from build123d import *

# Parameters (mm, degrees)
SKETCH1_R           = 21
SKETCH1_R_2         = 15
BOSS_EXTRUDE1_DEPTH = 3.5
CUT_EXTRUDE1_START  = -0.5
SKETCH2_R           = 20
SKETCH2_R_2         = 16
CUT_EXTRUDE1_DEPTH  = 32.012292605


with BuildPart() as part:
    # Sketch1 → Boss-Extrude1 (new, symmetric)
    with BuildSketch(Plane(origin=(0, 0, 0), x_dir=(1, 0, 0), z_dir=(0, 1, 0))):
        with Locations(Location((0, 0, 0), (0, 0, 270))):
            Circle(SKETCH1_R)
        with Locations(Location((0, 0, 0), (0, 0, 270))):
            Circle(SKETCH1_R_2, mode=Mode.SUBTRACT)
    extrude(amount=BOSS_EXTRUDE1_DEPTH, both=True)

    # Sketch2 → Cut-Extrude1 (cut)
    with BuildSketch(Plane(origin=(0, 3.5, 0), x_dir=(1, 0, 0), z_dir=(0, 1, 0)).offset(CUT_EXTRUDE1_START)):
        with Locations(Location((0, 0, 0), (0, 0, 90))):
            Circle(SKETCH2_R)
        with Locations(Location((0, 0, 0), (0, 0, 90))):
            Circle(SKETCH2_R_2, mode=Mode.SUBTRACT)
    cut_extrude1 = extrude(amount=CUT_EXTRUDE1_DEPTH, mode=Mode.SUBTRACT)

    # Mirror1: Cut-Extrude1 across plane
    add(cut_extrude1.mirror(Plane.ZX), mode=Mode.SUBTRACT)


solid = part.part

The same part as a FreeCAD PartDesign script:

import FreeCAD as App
import Part
import Sketcher

doc = App.newDocument("Part")
params = doc.addObject("Spreadsheet::Sheet", "Params")
for row, (alias, value) in enumerate([
    ("sketch1_diameter", "42 mm"),
    ("sketch1_diameter2", "30 mm"),
    ("pad1_length", "7 mm"),
    ("sketch2_diameter", "40 mm"),
    ("sketch2_diameter2", "32 mm"),
    ("pocket1_length", "32.012293 mm"),
], start=1):
    params.set(f"A{row}", alias)
    params.set(f"B{row}", "=" + value)
    params.setAlias(f"B{row}", alias)

body = doc.addObject("PartDesign::Body", "Body")

# Sketch on XZ plane
sketch1 = body.newObject("Sketcher::SketchObject", "Sketch")
sketch1.AttachmentSupport = (doc.getObject("XZ_Plane"), [""])
sketch1.MapMode = "FlatFace"
sketch1.addGeometry([
    Part.Circle(App.Vector(0, 0, 0), App.Vector(0, 0, 1), 21),
    Part.Circle(App.Vector(0, 0, 0), App.Vector(0, 0, 1), 15),
], False)
sketch1.addConstraint([
    Sketcher.Constraint("Coincident", 0, 3, -1, 1),
    Sketcher.Constraint("Coincident", 1, 3, -1, 1),
    Sketcher.Constraint("Diameter", 0, 42.0),
    Sketcher.Constraint("Diameter", 1, 30.0),
])
sketch1.setExpression("Constraints[2]", "Params.sketch1_diameter")
sketch1.setExpression("Constraints[3]", "Params.sketch1_diameter2")
pad1 = body.newObject("PartDesign::Pad", "Pad")
pad1.Profile = sketch1
pad1.setExpression("Length", "Params.pad1_length")
pad1.Midplane = True

# Sketch on XZ plane
sketch2 = body.newObject("Sketcher::SketchObject", "Sketch001")
sketch2.AttachmentSupport = (doc.getObject("XZ_Plane"), [""])
sketch2.MapMode = "FlatFace"
sketch2.AttachmentOffset = App.Placement(App.Vector(0, 0, -3), App.Rotation())
sketch2.addGeometry([
    Part.Circle(App.Vector(0, 0, 0), App.Vector(0, 0, 1), 20),
    Part.Circle(App.Vector(0, 0, 0), App.Vector(0, 0, 1), 16),
], False)
sketch2.addConstraint([
    Sketcher.Constraint("Coincident", 0, 3, -1, 1),
    Sketcher.Constraint("Coincident", 1, 3, -1, 1),
    Sketcher.Constraint("Diameter", 0, 40.0),
    Sketcher.Constraint("Diameter", 1, 32.0),
])
sketch2.setExpression("Constraints[2]", "Params.sketch2_diameter")
sketch2.setExpression("Constraints[3]", "Params.sketch2_diameter2")
pocket1 = body.newObject("PartDesign::Pocket", "Pocket")
pocket1.Profile = sketch2
pocket1.setExpression("Length", "Params.pocket1_length")
doc.recompute()

mirrored = body.newObject("PartDesign::Mirrored", "Mirrored")
mirrored.Originals = [pocket1]
mirrored.MirrorPlane = (doc.getObject("XZ_Plane"), [""])
body.Tip = mirrored

doc.recompute()
